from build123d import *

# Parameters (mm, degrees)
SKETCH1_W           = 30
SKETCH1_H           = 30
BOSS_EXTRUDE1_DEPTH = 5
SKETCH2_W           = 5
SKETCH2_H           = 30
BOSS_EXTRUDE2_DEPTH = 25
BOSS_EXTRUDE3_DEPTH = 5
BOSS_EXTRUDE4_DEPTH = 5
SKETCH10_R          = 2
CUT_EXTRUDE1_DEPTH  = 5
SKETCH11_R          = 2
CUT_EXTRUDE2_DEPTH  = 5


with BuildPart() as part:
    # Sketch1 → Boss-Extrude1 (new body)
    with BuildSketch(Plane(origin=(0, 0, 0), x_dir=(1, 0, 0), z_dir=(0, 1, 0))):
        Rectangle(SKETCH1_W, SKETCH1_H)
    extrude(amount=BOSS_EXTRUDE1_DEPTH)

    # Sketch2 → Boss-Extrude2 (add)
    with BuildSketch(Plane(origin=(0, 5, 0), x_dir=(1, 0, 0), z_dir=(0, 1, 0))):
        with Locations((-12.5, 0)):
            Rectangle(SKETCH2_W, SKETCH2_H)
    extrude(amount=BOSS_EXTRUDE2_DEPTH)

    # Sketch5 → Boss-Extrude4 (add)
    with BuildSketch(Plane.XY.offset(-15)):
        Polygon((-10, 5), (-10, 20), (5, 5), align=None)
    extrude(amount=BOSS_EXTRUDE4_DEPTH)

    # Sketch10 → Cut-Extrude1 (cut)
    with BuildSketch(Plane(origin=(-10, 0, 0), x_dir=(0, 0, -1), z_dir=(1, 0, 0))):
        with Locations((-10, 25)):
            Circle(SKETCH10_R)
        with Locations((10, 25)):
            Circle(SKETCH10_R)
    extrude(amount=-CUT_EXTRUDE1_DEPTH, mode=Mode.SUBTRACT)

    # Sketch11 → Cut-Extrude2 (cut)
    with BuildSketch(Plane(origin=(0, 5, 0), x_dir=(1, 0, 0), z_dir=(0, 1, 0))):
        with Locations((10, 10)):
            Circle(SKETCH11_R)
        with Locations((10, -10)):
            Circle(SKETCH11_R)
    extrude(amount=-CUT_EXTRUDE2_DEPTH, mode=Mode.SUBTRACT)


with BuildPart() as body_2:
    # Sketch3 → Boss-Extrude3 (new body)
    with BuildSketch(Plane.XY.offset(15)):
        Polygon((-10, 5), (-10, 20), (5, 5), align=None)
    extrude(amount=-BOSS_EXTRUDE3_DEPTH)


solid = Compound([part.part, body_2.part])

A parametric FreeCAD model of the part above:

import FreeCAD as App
import Part
import Sketcher
from FreeCAD import Vector
Q = App.Units.Quantity


def add_polygon(sketch, points):
    """Adds a closed chain of lines whose ends are joined by coincident constraints."""
    first, n = sketch.GeometryCount, len(points)
    for a, b in zip(points, points[1:] + points[:1]):
        sketch.addGeometry(Part.LineSegment(App.Vector(*a, 0), App.Vector(*b, 0)), False)
    for i in range(n):
        sketch.addConstraint(Sketcher.Constraint("Coincident", first + i, 2, first + (i + 1) % n, 1))

doc = App.newDocument("Part")
params = doc.addObject("Spreadsheet::Sheet", "Params")
for row, (alias, value) in enumerate([
    ("sketch1_width", "30 mm"),
    ("pad1_length", "5 mm"),
    ("sketch2_width", "5 mm"),
    ("sketch2_height", "30 mm"),
    ("pad2_length", "25 mm"),
    ("sketch3_width", "15 mm"),
    ("pad3_length", "5 mm"),
    ("sketch4_diameter", "4 mm"),
    ("pocket1_length", "5 mm"),
    ("sketch5_diameter", "4 mm"),
    ("pocket2_length", "5 mm"),
    ("sketch6_width", "15 mm"),
    ("pad4_length", "5 mm"),
], start=1):
    params.set(f"A{row}", alias)
    params.set(f"B{row}", "=" + value)
    params.setAlias(f"B{row}", alias)

body = doc.addObject("PartDesign::Body", "Body")

# Sketch on XZ plane
sketch1 = doc.addObject("Sketcher::SketchObject", "Sketch")
body.addObject(sketch1)
sketch1.AttachmentSupport = (doc.XZ_Plane, [""])
sketch1.MapMode = "FlatFace"
add_polygon(sketch1, [(-15, -15), (-15, 15), (15, 15), (15, -15)])  # lines 0-3
sketch1.addConstraint([
    Sketcher.Constraint("Vertical", 0),
    Sketcher.Constraint("Horizontal", 1),
    Sketcher.Constraint("Vertical", 2),
    Sketcher.Constraint("Horizontal", 3),
    Sketcher.Constraint("Symmetric", 0, 2, 2, 2, -1, 1),
    Sketcher.Constraint("Equal", 3, 0),
    Sketcher.Constraint("DistanceX", 1, 1, 1, 2, Q("30 mm")),
])
sketch1.setExpression("Constraints[10]", "Params.sketch1_width")
pad1 = doc.addObject("PartDesign::Pad", "Pad")
body.addObject(pad1)
pad1.Profile = sketch1
pad1.setExpression("Length", "Params.pad1_length")
pad1.Reversed = True

# Sketch on XZ plane
sketch2 = doc.addObject("Sketcher::SketchObject", "Sketch001")
body.addObject(sketch2)
sketch2.AttachmentSupport = (doc.XZ_Plane, [""])
sketch2.MapMode = "FlatFace"
sketch2.AttachmentOffset = App.Placement(Vector(0, 0, -5), App.Rotation())
add_polygon(sketch2, [(-15, -15), (-15, 15), (-10, 15), (-10, -15)])  # lines 0-3
sketch2.addConstraint([
    Sketcher.Constraint("Vertical", 0),
    Sketcher.Constraint("Horizontal", 1),
    Sketcher.Constraint("Vertical", 2),
    Sketcher.Constraint("Horizontal", 3),
    Sketcher.Constraint("DistanceX", 1, 1, 1, 2, Q("5 mm")),
    Sketcher.Constraint("DistanceY", 0, 1, 0, 2, Q("30 mm")),
    Sketcher.Constraint("DistanceX", 0, 2, -1, 1, Q("15 mm")),
    Sketcher.Constraint("DistanceY", -1, 1, 0, 2, Q("15 mm")),
])
sketch2.setExpression("Constraints[8]", "Params.sketch2_width")
sketch2.setExpression("Constraints[9]", "Params.sketch2_height")
pad2 = doc.addObject("PartDesign::Pad", "Pad001")
body.addObject(pad2)
pad2.Profile = sketch2
pad2.setExpression("Length", "Params.pad2_length")
pad2.Reversed = True

# Sketch on XY plane
sketch3 = doc.addObject("Sketcher::SketchObject", "Sketch002")
body.addObject(sketch3)
sketch3.AttachmentSupport = (doc.XY_Plane, [""])
sketch3.MapMode = "FlatFace"
sketch3.AttachmentOffset = App.Placement(Vector(0, 0, -15), App.Rotation())
add_polygon(sketch3, [(-10, 20), (-10, 5), (5, 5)])  # lines 0-2
sketch3.addConstraint([
    Sketcher.Constraint("Vertical", 0),
    Sketcher.Constraint("Horizontal", 1),
    Sketcher.Constraint("Equal", 1, 0),
    Sketcher.Constraint("DistanceX", 1, 1, 1, 2, Q("15 mm")),
    Sketcher.Constraint("DistanceX", 0, 2, -1, 1, Q("10 mm")),
    Sketcher.Constraint("DistanceY", -1, 1, 0, 2, Q("5 mm")),
])
sketch3.setExpression("Constraints[6]", "Params.sketch3_width")
pad3 = doc.addObject("PartDesign::Pad", "Pad002")
body.addObject(pad3)
pad3.Profile = sketch3
pad3.setExpression("Length", "Params.pad3_length")

# Sketch on YZ plane
sketch4 = doc.addObject("Sketcher::SketchObject", "Sketch003")
body.addObject(sketch4)
sketch4.AttachmentSupport = (doc.YZ_Plane, [""])
sketch4.MapMode = "FlatFace"
sketch4.AttachmentOffset = App.Placement(Vector(0, 0, -10), App.Rotation())
sketch4.addGeometry([
    Part.Circle(Vector(25, 10, 0), Vector(0, 0, 1), 2),
    Part.Circle(Vector(25, -10, 0), Vector(0, 0, 1), 2),
], False)
sketch4.addConstraint([
    Sketcher.Constraint("Equal", 0, 1),
    Sketcher.Constraint("Symmetric", 0, 3, 1, 3, -1),
    Sketcher.Constraint("Diameter", 0, Q("4 mm")),
    Sketcher.Constraint("DistanceX", -1, 1, 0, 3, Q("25 mm")),
    Sketcher.Constraint("DistanceY", -1, 1, 0, 3, Q("10 mm")),
])
sketch4.setExpression("Constraints[2]", "Params.sketch4_diameter")
pocket1 = doc.addObject("PartDesign::Pocket", "Pocket")
body.addObject(pocket1)
pocket1.Profile = sketch4
pocket1.setExpression("Length", "Params.pocket1_length")

# Sketch on XZ plane
sketch5 = doc.addObject("Sketcher::SketchObject", "Sketch004")
body.addObject(sketch5)
sketch5.AttachmentSupport = (doc.XZ_Plane, [""])
sketch5.MapMode = "FlatFace"
sketch5.AttachmentOffset = App.Placement(Vector(0, 0, -5), App.Rotation())
sketch5.addGeometry([
    Part.Circle(Vector(10, -10, 0), Vector(0, 0, 1), 2),
    Part.Circle(Vector(10, 10, 0), Vector(0, 0, 1), 2),
], False)
sketch5.addConstraint([
    Sketcher.Constraint("Equal", 0, 1),
    Sketcher.Constraint("Symmetric", 0, 3, 1, 3, -1),
    Sketcher.Constraint("Diameter", 0, Q("4 mm")),
    Sketcher.Constraint("DistanceX", -1, 1, 0, 3, Q("10 mm")),
    Sketcher.Constraint("DistanceY", 0, 3, -1, 1, Q("10 mm")),
])
sketch5.setExpression("Constraints[2]", "Params.sketch5_diameter")
pocket2 = doc.addObject("PartDesign::Pocket", "Pocket001")
body.addObject(pocket2)
pocket2.Profile = sketch5
pocket2.setExpression("Length", "Params.pocket2_length")
pocket2.Reversed = True
body2 = doc.addObject("PartDesign::Body", "Body001")

# Sketch on XY plane
sketch6 = doc.addObject("Sketcher::SketchObject", "Sketch005")
body2.addObject(sketch6)
sketch6.AttachmentSupport = (doc.getObject("XY_Plane001"), [""])
sketch6.MapMode = "FlatFace"
sketch6.AttachmentOffset = App.Placement(Vector(0, 0, 15), App.Rotation())
add_polygon(sketch6, [(-10, 20), (-10, 5), (5, 5)])  # lines 0-2
sketch6.addConstraint([
    Sketcher.Constraint("Vertical", 0),
    Sketcher.Constraint("Horizontal", 1),
    Sketcher.Constraint("Equal", 1, 0),
    Sketcher.Constraint("DistanceX", 1, 1, 1, 2, Q("15 mm")),
    Sketcher.Constraint("DistanceX", 0, 2, -1, 1, Q("10 mm")),
    Sketcher.Constraint("DistanceY", -1, 1, 0, 2, Q("5 mm")),
])
sketch6.setExpression("Constraints[6]", "Params.sketch6_width")
pad4 = doc.addObject("PartDesign::Pad", "Pad003")
body2.addObject(pad4)
pad4.Profile = sketch6
pad4.setExpression("Length", "Params.pad4_length")
pad4.Reversed = True

doc.recompute()
